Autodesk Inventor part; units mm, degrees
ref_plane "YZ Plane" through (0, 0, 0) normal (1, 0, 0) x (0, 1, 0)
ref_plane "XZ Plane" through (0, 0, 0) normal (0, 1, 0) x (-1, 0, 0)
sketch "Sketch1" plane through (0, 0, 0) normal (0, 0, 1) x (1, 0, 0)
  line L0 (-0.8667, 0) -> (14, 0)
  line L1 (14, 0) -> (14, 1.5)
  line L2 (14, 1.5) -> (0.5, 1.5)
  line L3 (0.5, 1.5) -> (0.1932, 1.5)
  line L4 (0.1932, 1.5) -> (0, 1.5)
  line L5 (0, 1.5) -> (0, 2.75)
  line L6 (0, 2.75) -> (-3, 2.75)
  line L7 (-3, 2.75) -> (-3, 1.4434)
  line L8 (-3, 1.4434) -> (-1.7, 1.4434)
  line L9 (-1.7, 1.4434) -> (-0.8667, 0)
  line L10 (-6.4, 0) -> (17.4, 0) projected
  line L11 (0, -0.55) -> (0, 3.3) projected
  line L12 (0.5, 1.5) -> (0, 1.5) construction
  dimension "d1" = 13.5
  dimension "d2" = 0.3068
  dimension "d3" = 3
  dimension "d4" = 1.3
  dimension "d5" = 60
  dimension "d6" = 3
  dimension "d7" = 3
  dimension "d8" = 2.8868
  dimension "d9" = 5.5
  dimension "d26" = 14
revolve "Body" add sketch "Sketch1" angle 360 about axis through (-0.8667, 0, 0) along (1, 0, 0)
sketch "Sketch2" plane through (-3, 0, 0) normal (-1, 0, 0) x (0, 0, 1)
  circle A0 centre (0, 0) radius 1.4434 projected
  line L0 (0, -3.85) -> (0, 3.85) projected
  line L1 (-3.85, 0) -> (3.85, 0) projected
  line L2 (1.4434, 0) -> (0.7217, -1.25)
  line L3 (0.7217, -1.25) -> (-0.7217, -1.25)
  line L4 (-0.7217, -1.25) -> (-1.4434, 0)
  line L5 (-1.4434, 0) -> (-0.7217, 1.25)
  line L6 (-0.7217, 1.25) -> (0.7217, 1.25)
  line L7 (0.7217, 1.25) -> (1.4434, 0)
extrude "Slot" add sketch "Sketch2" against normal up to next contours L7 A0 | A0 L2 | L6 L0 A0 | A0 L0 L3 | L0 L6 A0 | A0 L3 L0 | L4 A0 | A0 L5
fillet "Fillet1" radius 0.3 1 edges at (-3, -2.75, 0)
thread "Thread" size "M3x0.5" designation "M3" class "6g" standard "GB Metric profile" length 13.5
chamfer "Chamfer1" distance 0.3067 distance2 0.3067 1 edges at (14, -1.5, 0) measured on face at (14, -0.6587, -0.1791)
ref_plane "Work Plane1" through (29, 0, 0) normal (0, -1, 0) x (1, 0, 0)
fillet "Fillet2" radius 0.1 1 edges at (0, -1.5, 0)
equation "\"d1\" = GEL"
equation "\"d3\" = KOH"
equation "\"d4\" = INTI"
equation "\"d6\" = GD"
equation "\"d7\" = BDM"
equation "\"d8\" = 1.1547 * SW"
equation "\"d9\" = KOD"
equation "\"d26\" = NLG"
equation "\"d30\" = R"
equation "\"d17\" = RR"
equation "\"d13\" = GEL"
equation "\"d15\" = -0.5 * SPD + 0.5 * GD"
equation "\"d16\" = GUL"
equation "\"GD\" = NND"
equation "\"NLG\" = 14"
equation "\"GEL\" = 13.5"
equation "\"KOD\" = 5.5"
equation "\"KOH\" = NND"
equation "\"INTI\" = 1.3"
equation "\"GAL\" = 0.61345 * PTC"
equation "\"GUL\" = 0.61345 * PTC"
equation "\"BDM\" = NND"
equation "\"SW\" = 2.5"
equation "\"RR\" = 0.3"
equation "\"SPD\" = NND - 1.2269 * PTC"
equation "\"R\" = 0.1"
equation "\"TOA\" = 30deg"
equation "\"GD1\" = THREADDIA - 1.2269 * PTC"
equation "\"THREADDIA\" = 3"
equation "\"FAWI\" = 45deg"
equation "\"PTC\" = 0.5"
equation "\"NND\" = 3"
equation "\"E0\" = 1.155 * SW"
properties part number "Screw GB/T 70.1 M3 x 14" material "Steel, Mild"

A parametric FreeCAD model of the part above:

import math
import FreeCAD as App
import Part
import Sketcher
from FreeCAD import Vector
Q = App.Units.Quantity


def edges_at(feature, points):
    """Names of the edges that pass closest to the given points."""
    edges = feature.Shape.Edges
    near = lambda p: min(range(len(edges)), key=lambda i: edges[i].distToShape(Part.Vertex(*p))[0])
    return sorted({f"Edge{near(p) + 1}" for p in points})


def add_polygon(sketch, points):
    """Adds a closed chain of lines whose ends are joined by coincident constraints."""
    first, n = sketch.GeometryCount, len(points)
    for a, b in zip(points, points[1:] + points[:1]):
        sketch.addGeometry(Part.LineSegment(App.Vector(*a, 0), App.Vector(*b, 0)), False)
    for i in range(n):
        sketch.addConstraint(Sketcher.Constraint("Coincident", first + i, 2, first + (i + 1) % n, 1))

doc = App.newDocument("Part")
params = doc.addObject("Spreadsheet::Sheet", "Params")
for row, (alias, value) in enumerate([
    ("sketch1_width", "14 mm"),
    ("sketch1_width2", "3 mm"),
    ("sketch1_width3", "1.3 mm"),
    ("sketch1_height", "1.5 mm"),
    ("sketch1_height2", "1.25 mm"),
    ("revolution_angle", "360 deg"),
    ("fillet_radius", "0.3 mm"),
    ("chamfer_size", "0.3067 mm"),
    ("chamfer_size2", "0.3067 mm"),
    ("fillet2_radius", "0.1 mm"),
], start=1):
    params.set(f"A{row}", alias)
    params.set(f"B{row}", "=" + value)
    params.setAlias(f"B{row}", alias)

body = doc.addObject("PartDesign::Body", "Body")

# Sketch on XY plane
sketch1 = doc.addObject("Sketcher::SketchObject", "Sketch")
body.addObject(sketch1)
sketch1.AttachmentSupport = (doc.XY_Plane, [""])
sketch1.MapMode = "FlatFace"
add_polygon(sketch1, [(-1.7, 1.4), (-0.9, 0), (14, 0), (14, 1.5), (0, 1.5), (0, 2.8), (-3, 2.8), (-3, 1.4)])  # lines 0-7
sketch1.addConstraint([
    Sketcher.Constraint("Horizontal", 1),
    Sketcher.Constraint("Vertical", 2),
    Sketcher.Constraint("Horizontal", 3),
    Sketcher.Constraint("Vertical", 4),
    Sketcher.Constraint("Horizontal", 5),
    Sketcher.Constraint("Vertical", 6),
    Sketcher.Constraint("Horizontal", 7),
    Sketcher.Constraint("PointOnObject", 0, 2, -1),
    Sketcher.Constraint("PointOnObject", 3, 2, -2),
    Sketcher.Constraint("DistanceX", 3, 2, 3, 1, 14.0),
    Sketcher.Constraint("DistanceX", 5, 2, 5, 1, 3.0),
    Sketcher.Constraint("DistanceX", 7, 1, 7, 2, 1.3),
    Sketcher.Constraint("DistanceY", 2, 1, 2, 2, 1.5),
    Sketcher.Constraint("DistanceY", 4, 1, 4, 2, 1.25),
    Sketcher.Constraint("DistanceX", 1, 1, 1, 2, 14.8667),
    Sketcher.Constraint("DistanceY", 6, 2, 6, 1, 1.3066),
])
sketch1.setExpression("Constraints[17]", "Params.sketch1_width")
sketch1.setExpression("Constraints[18]", "Params.sketch1_width2")
sketch1.setExpression("Constraints[19]", "Params.sketch1_width3")
sketch1.setExpression("Constraints[20]", "Params.sketch1_height")
sketch1.setExpression("Constraints[21]", "Params.sketch1_height2")
revolution = doc.addObject("PartDesign::Revolution", "Revolution")
body.addObject(revolution)
revolution.Profile = sketch1
revolution.ReferenceAxis = (sketch1, ["H_Axis"])
revolution.setExpression("Angle", "Params.revolution_angle")

# Sketch on YZ plane
sketch2 = doc.addObject("Sketcher::SketchObject", "Sketch001")
body.addObject(sketch2)
sketch2.AttachmentSupport = (doc.YZ_Plane, [""])
sketch2.MapMode = "FlatFace"
sketch2.AttachmentOffset = App.Placement(Vector(0, 0, -3), App.Rotation())
sketch2.addGeometry([
    Part.LineSegment(Vector(1.2, 0.7, 0), Vector(0, 1.4, 0)),  # 0
    Part.ArcOfCircle(Part.Circle(Vector(0, 0, 0), Vector(0, 0, 1), 1.4), math.radians(30), math.radians(90)),  # 1
    Part.ArcOfCircle(Part.Circle(Vector(0, 0, 0), Vector(0, 0, 1), 1.4), math.radians(90), math.radians(150)),  # 2
    Part.LineSegment(Vector(0, 1.4, 0), Vector(-1.2, 0.7, 0)),  # 3
    Part.ArcOfCircle(Part.Circle(Vector(0, 0, 0), Vector(0, 0, 1), 1.4), math.radians(-30), math.radians(30)),  # 4
    Part.LineSegment(Vector(1.2, 0.7, 0), Vector(1.2, -0.7, 0)),  # 5
    Part.LineSegment(Vector(-1.2, 0.7, 0), Vector(-1.2, -0.7, 0)),  # 6
    Part.ArcOfCircle(Part.Circle(Vector(0, 0, 0), Vector(0, 0, 1), 1.4), math.radians(150), math.radians(210)),  # 7
    Part.LineSegment(Vector(-1.2, -0.7, 0), Vector(0, -1.4, 0)),  # 8
    Part.ArcOfCircle(Part.Circle(Vector(0, 0, 0), Vector(0, 0, 1), 1.4), math.radians(-150), math.radians(-90)),  # 9
    Part.ArcOfCircle(Part.Circle(Vector(0, 0, 0), Vector(0, 0, 1), 1.4), math.radians(-90), math.radians(-30)),  # 10
    Part.LineSegment(Vector(0, -1.4, 0), Vector(1.2, -0.7, 0)),  # 11
], False)
sketch2.addConstraint([
    Sketcher.Constraint("Coincident", 0, 1, 1, 1),
    Sketcher.Constraint("Coincident", 1, 2, 0, 2),
    Sketcher.Constraint("Coincident", 2, 1, 3, 1),
    Sketcher.Constraint("Coincident", 3, 2, 2, 2),
    Sketcher.Constraint("Coincident", 4, 1, 5, 2),
    Sketcher.Constraint("Coincident", 5, 1, 4, 2),
    Sketcher.Constraint("Coincident", 6, 1, 7, 1),
    Sketcher.Constraint("Coincident", 7, 2, 6, 2),
    Sketcher.Constraint("Coincident", 8, 1, 9, 1),
    Sketcher.Constraint("Coincident", 9, 2, 8, 2),
    Sketcher.Constraint("Coincident", 10, 1, 11, 1),
    Sketcher.Constraint("Coincident", 11, 2, 10, 2),
    Sketcher.Constraint("Vertical", 5),
    Sketcher.Constraint("Vertical", 6),
    Sketcher.Constraint("Coincident", 1, 3, -1, 1),
    Sketcher.Constraint("Coincident", 2, 3, -1, 1),
    Sketcher.Constraint("Coincident", 4, 3, -1, 1),
    Sketcher.Constraint("Coincident", 7, 3, -1, 1),
    Sketcher.Constraint("Coincident", 9, 3, -1, 1),
    Sketcher.Constraint("Coincident", 10, 3, -1, 1),
    Sketcher.Constraint("Coincident", 2, 1, 1, 2),
    Sketcher.Constraint("Coincident", 5, 1, 0, 1),
    Sketcher.Constraint("Coincident", 6, 1, 3, 2),
    Sketcher.Constraint("Coincident", 8, 1, 7, 2),
    Sketcher.Constraint("Coincident", 10, 1, 9, 2),
    Sketcher.Constraint("PointOnObject", 1, 2, -2),
    Sketcher.Constraint("PointOnObject", 9, 2, -2),
    Sketcher.Constraint("Parallel", 0, 8),
    Sketcher.Constraint("Parallel", 3, 11),
    Sketcher.Constraint("Angle", 0, Q("149.9996 deg")),
    Sketcher.Constraint("Radius", 1, 1.4434),
])
pad1 = doc.addObject("PartDesign::Pad", "Pad")
body.addObject(pad1)
pad1.Profile = sketch2
pad1.Type = "UpToFirst"
doc.recompute()

fillet = doc.addObject("PartDesign::Fillet", "Fillet")
body.addObject(fillet)
fillet.Base = (pad1, edges_at(pad1, [(-3, -2.75, 0)]))
fillet.setExpression("Radius", "Params.fillet_radius")
doc.recompute()

chamfer = doc.addObject("PartDesign::Chamfer", "Chamfer")
body.addObject(chamfer)
chamfer.Base = (fillet, edges_at(fillet, [(14, -1.5, 0)]))
chamfer.ChamferType = "Two distances"
chamfer.setExpression("Size", "Params.chamfer_size")
chamfer.setExpression("Size2", "Params.chamfer_size2")
doc.recompute()

fillet2 = doc.addObject("PartDesign::Fillet", "Fillet001")
body.addObject(fillet2)
fillet2.Base = (chamfer, edges_at(chamfer, [(0, -1.5, 0)]))
fillet2.setExpression("Radius", "Params.fillet2_radius")

doc.recompute()
